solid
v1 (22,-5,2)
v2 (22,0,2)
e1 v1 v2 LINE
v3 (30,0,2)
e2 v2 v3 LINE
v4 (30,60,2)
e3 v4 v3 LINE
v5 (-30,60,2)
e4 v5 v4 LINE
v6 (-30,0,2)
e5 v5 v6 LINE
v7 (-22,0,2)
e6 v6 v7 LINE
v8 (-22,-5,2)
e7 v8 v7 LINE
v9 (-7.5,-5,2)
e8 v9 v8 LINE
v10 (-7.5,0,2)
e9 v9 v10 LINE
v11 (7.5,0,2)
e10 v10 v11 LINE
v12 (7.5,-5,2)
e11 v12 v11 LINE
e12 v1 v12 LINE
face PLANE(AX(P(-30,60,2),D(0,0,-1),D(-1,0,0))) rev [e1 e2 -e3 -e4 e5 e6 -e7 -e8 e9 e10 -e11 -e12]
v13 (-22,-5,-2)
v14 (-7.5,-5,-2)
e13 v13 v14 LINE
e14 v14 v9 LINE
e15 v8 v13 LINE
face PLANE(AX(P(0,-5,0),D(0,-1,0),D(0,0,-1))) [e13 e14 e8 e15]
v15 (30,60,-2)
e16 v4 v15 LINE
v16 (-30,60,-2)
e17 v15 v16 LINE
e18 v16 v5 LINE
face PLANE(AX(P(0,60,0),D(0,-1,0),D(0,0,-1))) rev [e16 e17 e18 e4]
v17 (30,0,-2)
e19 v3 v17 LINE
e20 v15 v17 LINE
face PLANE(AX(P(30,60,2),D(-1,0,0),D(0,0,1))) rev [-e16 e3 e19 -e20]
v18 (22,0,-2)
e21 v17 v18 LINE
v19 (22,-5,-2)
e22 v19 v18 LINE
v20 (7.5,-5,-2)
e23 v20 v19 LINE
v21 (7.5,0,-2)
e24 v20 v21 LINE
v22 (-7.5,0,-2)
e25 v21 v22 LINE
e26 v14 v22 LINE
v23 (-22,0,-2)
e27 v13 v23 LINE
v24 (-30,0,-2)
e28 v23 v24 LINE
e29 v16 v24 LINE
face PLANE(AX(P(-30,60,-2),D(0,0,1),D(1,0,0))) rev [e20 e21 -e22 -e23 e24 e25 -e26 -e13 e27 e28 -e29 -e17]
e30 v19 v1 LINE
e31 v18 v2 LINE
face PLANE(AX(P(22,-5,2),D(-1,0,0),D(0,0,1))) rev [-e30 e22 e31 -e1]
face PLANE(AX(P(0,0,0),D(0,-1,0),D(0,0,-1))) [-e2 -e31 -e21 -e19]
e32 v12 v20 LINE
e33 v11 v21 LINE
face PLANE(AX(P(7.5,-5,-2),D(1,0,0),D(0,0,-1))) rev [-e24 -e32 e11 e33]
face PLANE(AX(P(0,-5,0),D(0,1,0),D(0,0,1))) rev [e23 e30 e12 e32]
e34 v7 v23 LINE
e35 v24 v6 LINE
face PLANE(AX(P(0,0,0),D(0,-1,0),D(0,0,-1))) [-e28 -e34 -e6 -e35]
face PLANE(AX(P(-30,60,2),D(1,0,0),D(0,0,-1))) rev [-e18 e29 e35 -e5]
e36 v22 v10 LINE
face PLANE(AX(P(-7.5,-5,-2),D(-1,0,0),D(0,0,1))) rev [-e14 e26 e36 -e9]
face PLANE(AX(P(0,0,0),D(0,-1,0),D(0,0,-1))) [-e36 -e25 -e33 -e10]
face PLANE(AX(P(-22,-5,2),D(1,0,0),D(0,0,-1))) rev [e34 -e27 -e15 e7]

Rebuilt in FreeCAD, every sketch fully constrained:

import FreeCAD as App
import Part
import Sketcher

doc = App.newDocument("Part")
body = doc.addObject("PartDesign::Body", "Body")

sketch1 = doc.addObject("Sketcher::SketchObject", "Sketch")
body.addObject(sketch1)
sketch1.AttachmentSupport = (doc.XZ_Plane, [""])
sketch1.MapMode = "FlatFace"
sketch1.addGeometry(Part.LineSegment(App.Vector(-30, -2, 0), App.Vector(-30, 2, 0)), False)
sketch1.addGeometry(Part.LineSegment(App.Vector(-30, 2, 0), App.Vector(30, 2, 0)), False)
sketch1.addGeometry(Part.LineSegment(App.Vector(30, 2, 0), App.Vector(30, -2, 0)), False)
sketch1.addGeometry(Part.LineSegment(App.Vector(30, -2, 0), App.Vector(-30, -2, 0)), False)
sketch1.addConstraint(Sketcher.Constraint("Coincident", 0, 2, 1, 1))
sketch1.addConstraint(Sketcher.Constraint("Coincident", 1, 2, 2, 1))
sketch1.addConstraint(Sketcher.Constraint("Coincident", 2, 2, 3, 1))
sketch1.addConstraint(Sketcher.Constraint("Coincident", 3, 2, 0, 1))
sketch1.addConstraint(Sketcher.Constraint("Vertical", 0))
sketch1.addConstraint(Sketcher.Constraint("Horizontal", 1))
sketch1.addConstraint(Sketcher.Constraint("Vertical", 2))
sketch1.addConstraint(Sketcher.Constraint("Horizontal", 3))
sketch1.addConstraint(Sketcher.Constraint("Symmetric", 0, 2, 2, 2, -1, 1))
sketch1.addConstraint(Sketcher.Constraint("DistanceX", 1, 1, 1, 2, 60.0))
sketch1.addConstraint(Sketcher.Constraint("DistanceY", 0, 1, 0, 2, 4.0))
pad1 = doc.addObject("PartDesign::Pad", "Pad")
body.addObject(pad1)
pad1.Profile = sketch1
pad1.Length = 60
pad1.Reversed = True

sketch2 = doc.addObject("Sketcher::SketchObject", "Sketch001")
body.addObject(sketch2)
sketch2.AttachmentSupport = (doc.XZ_Plane, [""])
sketch2.MapMode = "FlatFace"
sketch2.addGeometry(Part.LineSegment(App.Vector(-7.5, -2, 0), App.Vector(-7.5, 2, 0)), False)
sketch2.addGeometry(Part.LineSegment(App.Vector(-7.5, 2, 0), App.Vector(-22, 2, 0)), False)
sketch2.addGeometry(Part.LineSegment(App.Vector(-22, 2, 0), App.Vector(-22, -2, 0)), False)
sketch2.addGeometry(Part.LineSegment(App.Vector(-22, -2, 0), App.Vector(-7.5, -2, 0)), False)
sketch2.addGeometry(Part.LineSegment(App.Vector(22, -2, 0), App.Vector(22, 2, 0)), False)
sketch2.addGeometry(Part.LineSegment(App.Vector(22, 2, 0), App.Vector(7.5, 2, 0)), False)
sketch2.addGeometry(Part.LineSegment(App.Vector(7.5, 2, 0), App.Vector(7.5, -2, 0)), False)
sketch2.addGeometry(Part.LineSegment(App.Vector(7.5, -2, 0), App.Vector(22, -2, 0)), False)
sketch2.addConstraint(Sketcher.Constraint("Coincident", 0, 2, 1, 1))
sketch2.addConstraint(Sketcher.Constraint("Coincident", 1, 2, 2, 1))
sketch2.addConstraint(Sketcher.Constraint("Coincident", 2, 2, 3, 1))
sketch2.addConstraint(Sketcher.Constraint("Coincident", 3, 2, 0, 1))
sketch2.addConstraint(Sketcher.Constraint("Coincident", 4, 2, 5, 1))
sketch2.addConstraint(Sketcher.Constraint("Coincident", 5, 2, 6, 1))
sketch2.addConstraint(Sketcher.Constraint("Coincident", 6, 2, 7, 1))
sketch2.addConstraint(Sketcher.Constraint("Coincident", 7, 2, 4, 1))
sketch2.addConstraint(Sketcher.Constraint("Vertical", 0))
sketch2.addConstraint(Sketcher.Constraint("Horizontal", 1))
sketch2.addConstraint(Sketcher.Constraint("Vertical", 2))
sketch2.addConstraint(Sketcher.Constraint("Horizontal", 3))
sketch2.addConstraint(Sketcher.Constraint("Vertical", 4))
sketch2.addConstraint(Sketcher.Constraint("Horizontal", 5))
sketch2.addConstraint(Sketcher.Constraint("Vertical", 6))
sketch2.addConstraint(Sketcher.Constraint("Horizontal", 7))
sketch2.addConstraint(Sketcher.Constraint("Symmetric", 2, 2, 4, 2, -1, 1))
sketch2.addConstraint(Sketcher.Constraint("Symmetric", 0, 2, 6, 2, -1, 1))
sketch2.addConstraint(Sketcher.Constraint("Horizontal", 1, 2, 4, 2))
sketch2.addConstraint(Sketcher.Constraint("DistanceY", 0, 1, 0, 2, 4.0))
sketch2.addConstraint(Sketcher.Constraint("DistanceX", 1, 2, 1, 1, 14.5))
sketch2.addConstraint(Sketcher.Constraint("DistanceX", 1, 2, -1, 1, 22.0))
pad2 = doc.addObject("PartDesign::Pad", "Pad001")
body.addObject(pad2)
pad2.Profile = sketch2
pad2.Length = 5

doc.recompute()
